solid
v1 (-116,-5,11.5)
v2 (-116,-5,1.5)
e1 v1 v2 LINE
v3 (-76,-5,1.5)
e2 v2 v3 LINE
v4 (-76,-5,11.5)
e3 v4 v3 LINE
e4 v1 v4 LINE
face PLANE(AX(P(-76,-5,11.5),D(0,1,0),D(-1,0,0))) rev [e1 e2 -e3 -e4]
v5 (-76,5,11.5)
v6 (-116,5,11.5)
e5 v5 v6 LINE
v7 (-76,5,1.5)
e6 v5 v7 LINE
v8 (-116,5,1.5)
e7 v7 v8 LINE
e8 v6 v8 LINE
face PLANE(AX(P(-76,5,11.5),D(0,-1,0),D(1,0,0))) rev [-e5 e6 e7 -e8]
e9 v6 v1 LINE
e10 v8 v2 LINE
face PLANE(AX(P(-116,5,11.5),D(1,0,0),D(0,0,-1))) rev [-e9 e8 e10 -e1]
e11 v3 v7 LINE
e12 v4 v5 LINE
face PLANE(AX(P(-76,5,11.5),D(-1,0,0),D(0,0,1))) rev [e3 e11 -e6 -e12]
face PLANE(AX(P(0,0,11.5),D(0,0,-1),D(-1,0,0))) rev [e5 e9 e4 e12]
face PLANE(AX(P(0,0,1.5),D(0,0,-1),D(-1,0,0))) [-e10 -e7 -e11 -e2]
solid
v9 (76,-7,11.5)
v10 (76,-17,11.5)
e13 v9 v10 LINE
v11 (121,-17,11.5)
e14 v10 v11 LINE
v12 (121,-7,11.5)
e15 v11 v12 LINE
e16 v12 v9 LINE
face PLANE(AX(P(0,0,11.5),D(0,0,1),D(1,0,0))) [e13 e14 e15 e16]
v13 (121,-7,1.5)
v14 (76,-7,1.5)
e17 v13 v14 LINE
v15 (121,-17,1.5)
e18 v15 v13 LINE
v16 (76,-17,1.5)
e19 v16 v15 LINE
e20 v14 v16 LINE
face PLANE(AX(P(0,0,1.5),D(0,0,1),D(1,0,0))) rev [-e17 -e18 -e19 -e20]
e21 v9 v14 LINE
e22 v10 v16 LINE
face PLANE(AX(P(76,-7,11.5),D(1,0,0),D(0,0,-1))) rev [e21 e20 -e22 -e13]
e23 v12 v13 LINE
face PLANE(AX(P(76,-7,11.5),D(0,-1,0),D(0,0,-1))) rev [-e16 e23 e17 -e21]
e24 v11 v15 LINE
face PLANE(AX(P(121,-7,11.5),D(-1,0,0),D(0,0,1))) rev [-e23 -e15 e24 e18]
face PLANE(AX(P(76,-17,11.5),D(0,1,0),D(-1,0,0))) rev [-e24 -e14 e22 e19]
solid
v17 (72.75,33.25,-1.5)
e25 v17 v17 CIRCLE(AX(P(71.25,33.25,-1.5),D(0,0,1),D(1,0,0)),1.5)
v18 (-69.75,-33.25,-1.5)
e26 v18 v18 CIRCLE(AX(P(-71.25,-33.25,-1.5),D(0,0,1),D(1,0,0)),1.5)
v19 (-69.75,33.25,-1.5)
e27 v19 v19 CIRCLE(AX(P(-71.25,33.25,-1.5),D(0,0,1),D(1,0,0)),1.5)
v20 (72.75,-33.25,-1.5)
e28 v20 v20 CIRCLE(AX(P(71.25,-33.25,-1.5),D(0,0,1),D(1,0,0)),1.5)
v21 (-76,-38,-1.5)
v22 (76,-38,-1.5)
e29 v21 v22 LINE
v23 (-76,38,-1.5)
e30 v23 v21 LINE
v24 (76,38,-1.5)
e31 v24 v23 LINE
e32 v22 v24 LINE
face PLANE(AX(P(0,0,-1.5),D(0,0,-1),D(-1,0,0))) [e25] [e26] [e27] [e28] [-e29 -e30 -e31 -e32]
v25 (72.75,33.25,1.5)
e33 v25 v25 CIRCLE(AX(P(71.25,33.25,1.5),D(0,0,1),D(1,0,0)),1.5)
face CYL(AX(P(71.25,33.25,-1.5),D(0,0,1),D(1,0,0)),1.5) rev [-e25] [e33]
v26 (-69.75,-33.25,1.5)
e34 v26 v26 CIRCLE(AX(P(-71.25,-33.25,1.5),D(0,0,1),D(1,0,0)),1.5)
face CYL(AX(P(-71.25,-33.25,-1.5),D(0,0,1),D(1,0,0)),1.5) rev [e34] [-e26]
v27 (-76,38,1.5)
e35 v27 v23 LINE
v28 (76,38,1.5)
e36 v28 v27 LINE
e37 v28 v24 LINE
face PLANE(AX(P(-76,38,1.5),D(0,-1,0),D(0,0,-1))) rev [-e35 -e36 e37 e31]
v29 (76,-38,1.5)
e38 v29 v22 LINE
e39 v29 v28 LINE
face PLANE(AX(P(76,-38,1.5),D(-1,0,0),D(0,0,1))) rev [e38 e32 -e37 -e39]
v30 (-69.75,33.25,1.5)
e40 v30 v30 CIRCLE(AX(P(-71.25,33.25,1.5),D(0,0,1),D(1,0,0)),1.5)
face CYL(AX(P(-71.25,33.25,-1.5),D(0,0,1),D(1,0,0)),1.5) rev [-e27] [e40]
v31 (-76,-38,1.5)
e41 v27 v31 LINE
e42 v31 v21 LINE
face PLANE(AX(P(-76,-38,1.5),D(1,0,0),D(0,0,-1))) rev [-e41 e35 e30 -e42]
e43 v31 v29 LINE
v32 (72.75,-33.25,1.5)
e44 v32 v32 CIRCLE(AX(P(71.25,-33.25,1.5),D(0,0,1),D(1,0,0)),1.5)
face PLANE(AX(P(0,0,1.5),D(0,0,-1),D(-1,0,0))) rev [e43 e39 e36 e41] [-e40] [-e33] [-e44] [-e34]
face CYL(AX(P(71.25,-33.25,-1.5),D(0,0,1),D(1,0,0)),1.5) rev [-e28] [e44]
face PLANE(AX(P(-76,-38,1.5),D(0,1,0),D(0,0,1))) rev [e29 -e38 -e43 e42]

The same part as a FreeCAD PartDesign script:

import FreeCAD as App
import Part
import Sketcher
Q = App.Units.Quantity

doc = App.newDocument("Part")
body = doc.addObject("PartDesign::Body", "Body")

# Sketch on XY plane
sketch1 = doc.addObject("Sketcher::SketchObject", "Sketch")
body.addObject(sketch1)
sketch1.AttachmentSupport = (doc.XY_Plane, [""])
sketch1.MapMode = "FlatFace"
sketch1.addGeometry(Part.LineSegment(App.Vector(-76, 38, 0), App.Vector(-76, -38, 0)), False)
sketch1.addGeometry(Part.LineSegment(App.Vector(-76, -38, 0), App.Vector(76, -38, 0)), False)
sketch1.addGeometry(Part.LineSegment(App.Vector(76, -38, 0), App.Vector(76, 38, 0)), False)
sketch1.addGeometry(Part.LineSegment(App.Vector(76, 38, 0), App.Vector(-76, 38, 0)), False)
sketch1.addConstraint(Sketcher.Constraint("Coincident", 0, 2, 1, 1))
sketch1.addConstraint(Sketcher.Constraint("Coincident", 1, 2, 2, 1))
sketch1.addConstraint(Sketcher.Constraint("Coincident", 2, 2, 3, 1))
sketch1.addConstraint(Sketcher.Constraint("Coincident", 3, 2, 0, 1))
sketch1.addConstraint(Sketcher.Constraint("Vertical", 0))
sketch1.addConstraint(Sketcher.Constraint("Horizontal", 1))
sketch1.addConstraint(Sketcher.Constraint("Vertical", 2))
sketch1.addConstraint(Sketcher.Constraint("Horizontal", 3))
sketch1.addConstraint(Sketcher.Constraint("Symmetric", 0, 2, 2, 2, -1, 1))
sketch1.addConstraint(Sketcher.Constraint("DistanceX", 1, 1, 1, 2, Q("152 mm")))
sketch1.addConstraint(Sketcher.Constraint("DistanceY", 0, 2, 0, 1, Q("76 mm")))
pad1 = doc.addObject("PartDesign::Pad", "Pad")
body.addObject(pad1)
pad1.Profile = sketch1
pad1.Length = 3
pad1.Midplane = True

# Sketch on XY plane
sketch2 = doc.addObject("Sketcher::SketchObject", "Sketch001")
body.addObject(sketch2)
sketch2.AttachmentSupport = (doc.XY_Plane, [""])
sketch2.MapMode = "FlatFace"
sketch2.addGeometry(Part.Circle(App.Vector(-71.25, 33.25, 0), App.Vector(0, 0, 1), 1.5), False)
sketch2.addGeometry(Part.Circle(App.Vector(71.25, 33.25, 0), App.Vector(0, 0, 1), 1.5), False)
sketch2.addGeometry(Part.Circle(App.Vector(-71.25, -33.25, 0), App.Vector(0, 0, 1), 1.5), False)
sketch2.addGeometry(Part.Circle(App.Vector(71.25, -33.25, 0), App.Vector(0, 0, 1), 1.5), False)
sketch2.addConstraint(Sketcher.Constraint("Equal", 0, 1))
sketch2.addConstraint(Sketcher.Constraint("Equal", 1, 2))
sketch2.addConstraint(Sketcher.Constraint("Equal", 2, 3))
sketch2.addConstraint(Sketcher.Constraint("Symmetric", 1, 3, 2, 3, -1, 1))
sketch2.addConstraint(Sketcher.Constraint("Symmetric", 0, 3, 3, 3, -1, 1))
sketch2.addConstraint(Sketcher.Constraint("Symmetric", 0, 3, 1, 3, -2))
sketch2.addConstraint(Sketcher.Constraint("Diameter", 0, Q("3 mm")))
sketch2.addConstraint(Sketcher.Constraint("DistanceX", 0, 3, 1, 3, Q("142.5 mm")))
sketch2.addConstraint(Sketcher.Constraint("DistanceY", 2, 3, 0, 3, Q("66.5 mm")))
pocket1 = doc.addObject("PartDesign::Pocket", "Pocket")
body.addObject(pocket1)
pocket1.Profile = sketch2
pocket1.Type = "ThroughAll"
pocket1.Midplane = True
body2 = doc.addObject("PartDesign::Body", "Body001")

# Sketch on XY plane
sketch3 = doc.addObject("Sketcher::SketchObject", "Sketch002")
body2.addObject(sketch3)
sketch3.AttachmentSupport = (doc.getObject("XY_Plane001"), [""])
sketch3.MapMode = "FlatFace"
sketch3.AttachmentOffset = App.Placement(App.Vector(0, 0, 1.5), App.Rotation())
sketch3.addGeometry(Part.LineSegment(App.Vector(-116, 5, 0), App.Vector(-116, -5, 0)), False)
sketch3.addGeometry(Part.LineSegment(App.Vector(-116, -5, 0), App.Vector(-76, -5, 0)), False)
sketch3.addGeometry(Part.LineSegment(App.Vector(-76, -5, 0), App.Vector(-76, 5, 0)), False)
sketch3.addGeometry(Part.LineSegment(App.Vector(-76, 5, 0), App.Vector(-116, 5, 0)), False)
sketch3.addConstraint(Sketcher.Constraint("Coincident", 0, 2, 1, 1))
sketch3.addConstraint(Sketcher.Constraint("Coincident", 1, 2, 2, 1))
sketch3.addConstraint(Sketcher.Constraint("Coincident", 2, 2, 3, 1))
sketch3.addConstraint(Sketcher.Constraint("Coincident", 3, 2, 0, 1))
sketch3.addConstraint(Sketcher.Constraint("Vertical", 0))
sketch3.addConstraint(Sketcher.Constraint("Horizontal", 1))
sketch3.addConstraint(Sketcher.Constraint("Vertical", 2))
sketch3.addConstraint(Sketcher.Constraint("Horizontal", 3))
sketch3.addConstraint(Sketcher.Constraint("DistanceX", 1, 1, 1, 2, Q("40 mm")))
sketch3.addConstraint(Sketcher.Constraint("DistanceY", 0, 2, 0, 1, Q("10 mm")))
sketch3.addConstraint(Sketcher.Constraint("DistanceX", 0, 2, -1, 1, Q("116 mm")))
sketch3.addConstraint(Sketcher.Constraint("DistanceY", 0, 2, -1, 1, Q("5 mm")))
pad2 = doc.addObject("PartDesign::Pad", "Pad001")
body2.addObject(pad2)
pad2.Profile = sketch3
pad2.Length = 10
body3 = doc.addObject("PartDesign::Body", "Body002")

# Sketch on XY plane
sketch4 = doc.addObject("Sketcher::SketchObject", "Sketch003")
body3.addObject(sketch4)
sketch4.AttachmentSupport = (doc.getObject("XY_Plane002"), [""])
sketch4.MapMode = "FlatFace"
sketch4.AttachmentOffset = App.Placement(App.Vector(0, 0, 1.5), App.Rotation())
sketch4.addGeometry(Part.LineSegment(App.Vector(76, -7, 0), App.Vector(76, -17, 0)), False)
sketch4.addGeometry(Part.LineSegment(App.Vector(76, -17, 0), App.Vector(121, -17, 0)), False)
sketch4.addGeometry(Part.LineSegment(App.Vector(121, -17, 0), App.Vector(121, -7, 0)), False)
sketch4.addGeometry(Part.LineSegment(App.Vector(121, -7, 0), App.Vector(76, -7, 0)), False)
sketch4.addConstraint(Sketcher.Constraint("Coincident", 0, 2, 1, 1))
sketch4.addConstraint(Sketcher.Constraint("Coincident", 1, 2, 2, 1))
sketch4.addConstraint(Sketcher.Constraint("Coincident", 2, 2, 3, 1))
sketch4.addConstraint(Sketcher.Constraint("Coincident", 3, 2, 0, 1))
sketch4.addConstraint(Sketcher.Constraint("Vertical", 0))
sketch4.addConstraint(Sketcher.Constraint("Horizontal", 1))
sketch4.addConstraint(Sketcher.Constraint("Vertical", 2))
sketch4.addConstraint(Sketcher.Constraint("Horizontal", 3))
sketch4.addConstraint(Sketcher.Constraint("DistanceX", 1, 1, 1, 2, Q("45 mm")))
sketch4.addConstraint(Sketcher.Constraint("DistanceY", 0, 2, 0, 1, Q("10 mm")))
sketch4.addConstraint(Sketcher.Constraint("DistanceX", -1, 1, 0, 2, Q("76 mm")))
sketch4.addConstraint(Sketcher.Constraint("DistanceY", 0, 2, -1, 1, Q("17 mm")))
pad3 = doc.addObject("PartDesign::Pad", "Pad002")
body3.addObject(pad3)
pad3.Profile = sketch4
pad3.Length = 10

doc.recompute()
